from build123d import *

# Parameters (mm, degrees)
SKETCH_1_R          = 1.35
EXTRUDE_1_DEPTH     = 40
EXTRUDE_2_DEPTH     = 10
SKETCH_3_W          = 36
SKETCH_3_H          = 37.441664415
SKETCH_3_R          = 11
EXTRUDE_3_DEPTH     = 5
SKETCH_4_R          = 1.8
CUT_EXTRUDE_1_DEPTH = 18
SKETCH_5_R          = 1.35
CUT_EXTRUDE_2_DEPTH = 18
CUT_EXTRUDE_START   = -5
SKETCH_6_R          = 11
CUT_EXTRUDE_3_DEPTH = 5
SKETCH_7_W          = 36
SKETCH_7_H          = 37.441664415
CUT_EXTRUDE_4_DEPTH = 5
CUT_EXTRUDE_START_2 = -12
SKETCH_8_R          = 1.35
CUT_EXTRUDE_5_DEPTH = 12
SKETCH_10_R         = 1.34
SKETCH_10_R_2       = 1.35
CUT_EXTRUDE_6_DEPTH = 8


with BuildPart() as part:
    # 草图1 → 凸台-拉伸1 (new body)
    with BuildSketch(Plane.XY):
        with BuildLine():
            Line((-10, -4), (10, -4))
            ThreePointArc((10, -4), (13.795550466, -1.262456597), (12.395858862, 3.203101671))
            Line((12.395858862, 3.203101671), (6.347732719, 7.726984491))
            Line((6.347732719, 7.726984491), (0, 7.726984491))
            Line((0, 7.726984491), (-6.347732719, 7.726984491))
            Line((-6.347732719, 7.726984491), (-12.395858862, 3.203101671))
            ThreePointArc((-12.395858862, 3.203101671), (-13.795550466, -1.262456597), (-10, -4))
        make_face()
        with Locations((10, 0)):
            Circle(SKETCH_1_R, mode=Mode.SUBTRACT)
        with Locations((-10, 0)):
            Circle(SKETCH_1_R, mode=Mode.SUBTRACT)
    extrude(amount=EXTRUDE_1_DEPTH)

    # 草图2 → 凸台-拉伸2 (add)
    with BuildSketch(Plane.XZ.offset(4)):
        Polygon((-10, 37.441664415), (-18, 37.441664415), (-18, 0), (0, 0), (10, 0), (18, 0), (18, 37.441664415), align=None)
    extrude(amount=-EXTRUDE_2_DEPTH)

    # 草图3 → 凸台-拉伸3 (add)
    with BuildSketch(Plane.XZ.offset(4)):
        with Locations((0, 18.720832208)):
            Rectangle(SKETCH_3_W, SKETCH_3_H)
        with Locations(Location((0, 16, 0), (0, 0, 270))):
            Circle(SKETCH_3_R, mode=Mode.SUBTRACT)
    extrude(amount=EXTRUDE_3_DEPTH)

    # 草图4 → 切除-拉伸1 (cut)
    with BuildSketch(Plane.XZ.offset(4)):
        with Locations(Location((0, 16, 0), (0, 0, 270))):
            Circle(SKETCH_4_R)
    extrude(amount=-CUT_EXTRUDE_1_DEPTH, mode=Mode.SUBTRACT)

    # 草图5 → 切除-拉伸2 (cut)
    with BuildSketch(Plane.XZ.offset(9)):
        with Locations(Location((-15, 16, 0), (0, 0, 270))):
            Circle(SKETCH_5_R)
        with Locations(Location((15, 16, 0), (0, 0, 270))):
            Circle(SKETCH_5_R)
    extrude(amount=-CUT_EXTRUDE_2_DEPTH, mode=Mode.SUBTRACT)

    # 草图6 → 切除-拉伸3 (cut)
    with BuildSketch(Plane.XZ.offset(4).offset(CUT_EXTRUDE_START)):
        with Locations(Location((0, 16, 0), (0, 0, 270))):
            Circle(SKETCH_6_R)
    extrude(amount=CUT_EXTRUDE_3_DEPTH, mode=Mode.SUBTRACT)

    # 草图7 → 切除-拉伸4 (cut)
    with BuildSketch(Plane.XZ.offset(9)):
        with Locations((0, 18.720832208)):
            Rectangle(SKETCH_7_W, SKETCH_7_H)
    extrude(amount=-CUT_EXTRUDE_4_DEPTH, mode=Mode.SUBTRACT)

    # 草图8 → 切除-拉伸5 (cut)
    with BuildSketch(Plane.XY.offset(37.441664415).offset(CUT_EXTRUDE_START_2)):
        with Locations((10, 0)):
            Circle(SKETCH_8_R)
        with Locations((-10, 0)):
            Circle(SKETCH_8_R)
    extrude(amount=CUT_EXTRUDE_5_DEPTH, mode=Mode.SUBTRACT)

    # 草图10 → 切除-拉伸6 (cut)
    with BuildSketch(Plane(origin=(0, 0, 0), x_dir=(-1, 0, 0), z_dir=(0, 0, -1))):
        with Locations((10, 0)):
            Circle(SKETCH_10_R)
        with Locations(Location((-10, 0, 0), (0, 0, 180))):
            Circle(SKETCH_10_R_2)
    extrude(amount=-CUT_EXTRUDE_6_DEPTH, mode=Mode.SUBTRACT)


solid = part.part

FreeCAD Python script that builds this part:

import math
import FreeCAD as App
import Part
import Sketcher


def add_polygon(sketch, points):
    """Adds a closed chain of lines whose ends are joined by coincident constraints."""
    first, n = sketch.GeometryCount, len(points)
    for a, b in zip(points, points[1:] + points[:1]):
        sketch.addGeometry(Part.LineSegment(App.Vector(*a, 0), App.Vector(*b, 0)), False)
    for i in range(n):
        sketch.addConstraint(Sketcher.Constraint("Coincident", first + i, 2, first + (i + 1) % n, 1))

doc = App.newDocument("Part")
body = doc.addObject("PartDesign::Body", "Body")

sketch1 = body.newObject("Sketcher::SketchObject", "Sketch")
sketch1.AttachmentSupport = (doc.getObject("XY_Plane"), [""])
sketch1.MapMode = "FlatFace"
sketch1.addGeometry([
    Part.LineSegment(App.Vector(-10, -4, 0), App.Vector(10, -4, 0)),
    Part.ArcOfCircle(Part.Circle(App.Vector(10, 0, 0), App.Vector(0, 0, 1), 4), math.radians(-90), math.radians(53)),
    Part.LineSegment(App.Vector(12.4, 3.2, 0), App.Vector(6.3, 7.7, 0)),
    Part.LineSegment(App.Vector(6.3, 7.7, 0), App.Vector(-6.3, 7.7, 0)),
    Part.LineSegment(App.Vector(-6.3, 7.7, 0), App.Vector(-12.4, 3.2, 0)),
    Part.ArcOfCircle(Part.Circle(App.Vector(-10, 0, 0), App.Vector(0, 0, 1), 4), math.radians(127), math.radians(270)),
    Part.Circle(App.Vector(-10, 0, 0), App.Vector(0, 0, 1), 1.4),
    Part.Circle(App.Vector(10, 0, 0), App.Vector(0, 0, 1), 1.4),
], False)
sketch1.addConstraint([
    Sketcher.Constraint("Tangent", 0, 2, 1, 1),
    Sketcher.Constraint("Tangent", 1, 2, 2, 1),
    Sketcher.Constraint("Coincident", 2, 2, 3, 1),
    Sketcher.Constraint("Coincident", 3, 2, 4, 1),
    Sketcher.Constraint("Tangent", 4, 2, 5, 1),
    Sketcher.Constraint("Tangent", 5, 2, 0, 1),
    Sketcher.Constraint("Horizontal", 0),
    Sketcher.Constraint("Horizontal", 3),
    Sketcher.Constraint("Coincident", 6, 3, 5, 3),
    Sketcher.Constraint("Coincident", 7, 3, 1, 3),
    Sketcher.Constraint("Equal", 1, 5),
    Sketcher.Constraint("Equal", 6, 7),
    Sketcher.Constraint("Symmetric", 1, 3, 5, 3, -1, 1),
    Sketcher.Constraint("Horizontal", 1, 2, 4, 2),
    Sketcher.Constraint("Radius", 1, 4.0),
    Sketcher.Constraint("Diameter", 6, 2.7),
    Sketcher.Constraint("DistanceX", 0, 1, 0, 2, 20.0),
    Sketcher.Constraint("DistanceY", -1, 1, 1, 2, 3.203102),
    Sketcher.Constraint("DistanceX", 3, 2, 3, 1, 12.695465),
])
pad1 = body.newObject("PartDesign::Pad", "Pad")
pad1.Profile = sketch1
pad1.Length = 40

sketch2 = body.newObject("Sketcher::SketchObject", "Sketch001")
sketch2.AttachmentSupport = (doc.getObject("XZ_Plane"), [""])
sketch2.MapMode = "FlatFace"
sketch2.AttachmentOffset = App.Placement(App.Vector(0, 0, 4), App.Rotation())
add_polygon(sketch2, [(-18, 37), (-18, 0), (18, 0), (18, 37)])
sketch2.addConstraint([
    Sketcher.Constraint("Vertical", 0),
    Sketcher.Constraint("Horizontal", 1),
    Sketcher.Constraint("Vertical", 2),
    Sketcher.Constraint("Horizontal", 3),
    Sketcher.Constraint("Symmetric", 0, 2, 1, 2, -1, 1),
    Sketcher.Constraint("DistanceX", 1, 1, 1, 2, 36.0),
    Sketcher.Constraint("DistanceY", 0, 2, 0, 1, 37.441664),
])
pad2 = body.newObject("PartDesign::Pad", "Pad001")
pad2.Profile = sketch2
pad2.Length = 10
pad2.Reversed = True

sketch3 = body.newObject("Sketcher::SketchObject", "Sketch002")
sketch3.AttachmentSupport = (doc.getObject("XZ_Plane"), [""])
sketch3.MapMode = "FlatFace"
sketch3.AttachmentOffset = App.Placement(App.Vector(0, 0, 4), App.Rotation())
add_polygon(sketch3, [(-18, 37), (-18, 0), (18, 0), (18, 37)])
sketch3.addGeometry(Part.Circle(App.Vector(0, 16, 0), App.Vector(0, 0, 1), 11), False)
sketch3.addConstraint([
    Sketcher.Constraint("Vertical", 0),
    Sketcher.Constraint("Horizontal", 1),
    Sketcher.Constraint("Vertical", 2),
    Sketcher.Constraint("Horizontal", 3),
    Sketcher.Constraint("Symmetric", 0, 2, 1, 2, -1, 1),
    Sketcher.Constraint("PointOnObject", 4, 3, -2),
    Sketcher.Constraint("Diameter", 4, 22.0),
    Sketcher.Constraint("DistanceX", 1, 1, 1, 2, 36.0),
    Sketcher.Constraint("DistanceY", -1, 1, 4, 3, 16.0),
    Sketcher.Constraint("DistanceY", 0, 2, 0, 1, 37.441664),
])
pad3 = body.newObject("PartDesign::Pad", "Pad002")
pad3.Profile = sketch3
pad3.Length = 5

sketch4 = body.newObject("Sketcher::SketchObject", "Sketch003")
sketch4.AttachmentSupport = (doc.getObject("XZ_Plane"), [""])
sketch4.MapMode = "FlatFace"
sketch4.AttachmentOffset = App.Placement(App.Vector(0, 0, 4), App.Rotation())
sketch4.addGeometry(Part.Circle(App.Vector(0, 16, 0), App.Vector(0, 0, 1), 1.8), False)
sketch4.addConstraint([
    Sketcher.Constraint("PointOnObject", 0, 3, -2),
    Sketcher.Constraint("Diameter", 0, 3.6),
    Sketcher.Constraint("DistanceY", -1, 1, 0, 3, 16.0),
])
pocket1 = body.newObject("PartDesign::Pocket", "Pocket")
pocket1.Profile = sketch4
pocket1.Length = 18

sketch5 = body.newObject("Sketcher::SketchObject", "Sketch004")
sketch5.AttachmentSupport = (doc.getObject("XZ_Plane"), [""])
sketch5.MapMode = "FlatFace"
sketch5.AttachmentOffset = App.Placement(App.Vector(0, 0, 9), App.Rotation())
sketch5.addGeometry([
    Part.Circle(App.Vector(-15, 16, 0), App.Vector(0, 0, 1), 1.4),
    Part.Circle(App.Vector(15, 16, 0), App.Vector(0, 0, 1), 1.4),
], False)
sketch5.addConstraint([
    Sketcher.Constraint("Equal", 0, 1),
    Sketcher.Constraint("Symmetric", 0, 3, 1, 3, -2),
    Sketcher.Constraint("Diameter", 0, 2.7),
    Sketcher.Constraint("DistanceX", 0, 3, -1, 1, 15.0),
    Sketcher.Constraint("DistanceY", -1, 1, 0, 3, 16.0),
])
pocket2 = body.newObject("PartDesign::Pocket", "Pocket001")
pocket2.Profile = sketch5
pocket2.Length = 18

sketch6 = body.newObject("Sketcher::SketchObject", "Sketch005")
sketch6.AttachmentSupport = (doc.getObject("XZ_Plane"), [""])
sketch6.MapMode = "FlatFace"
sketch6.AttachmentOffset = App.Placement(App.Vector(0, 0, -1), App.Rotation())
sketch6.addGeometry(Part.Circle(App.Vector(0, 16, 0), App.Vector(0, 0, 1), 11), False)
sketch6.addConstraint([
    Sketcher.Constraint("PointOnObject", 0, 3, -2),
    Sketcher.Constraint("Diameter", 0, 22.0),
    Sketcher.Constraint("DistanceY", -1, 1, 0, 3, 16.0),
])
pocket3 = body.newObject("PartDesign::Pocket", "Pocket002")
pocket3.Profile = sketch6
pocket3.Length = 5
pocket3.Reversed = True

sketch7 = body.newObject("Sketcher::SketchObject", "Sketch006")
sketch7.AttachmentSupport = (doc.getObject("XZ_Plane"), [""])
sketch7.MapMode = "FlatFace"
sketch7.AttachmentOffset = App.Placement(App.Vector(0, 0, 9), App.Rotation())
add_polygon(sketch7, [(-18, 37), (-18, 0), (18, 0), (18, 37)])
sketch7.addConstraint([
    Sketcher.Constraint("Vertical", 0),
    Sketcher.Constraint("Horizontal", 1),
    Sketcher.Constraint("Vertical", 2),
    Sketcher.Constraint("Horizontal", 3),
    Sketcher.Constraint("Symmetric", 0, 2, 1, 2, -1, 1),
    Sketcher.Constraint("DistanceX", 1, 1, 1, 2, 36.0),
    Sketcher.Constraint("DistanceY", 0, 2, 0, 1, 37.441664),
])
pocket4 = body.newObject("PartDesign::Pocket", "Pocket003")
pocket4.Profile = sketch7
pocket4.Length = 5

sketch8 = body.newObject("Sketcher::SketchObject", "Sketch007")
sketch8.AttachmentSupport = (doc.getObject("XY_Plane"), [""])
sketch8.MapMode = "FlatFace"
sketch8.AttachmentOffset = App.Placement(App.Vector(0, 0, 25.441664), App.Rotation())
sketch8.addGeometry([
    Part.Circle(App.Vector(10, 0, 0), App.Vector(0, 0, 1), 1.4),
    Part.Circle(App.Vector(-10, 0, 0), App.Vector(0, 0, 1), 1.4),
], False)
sketch8.addConstraint([
    Sketcher.Constraint("Equal", 0, 1),
    Sketcher.Constraint("Symmetric", 0, 3, 1, 3, -1, 1),
    Sketcher.Constraint("PointOnObject", 0, 3, -1),
    Sketcher.Constraint("Diameter", 0, 2.7),
    Sketcher.Constraint("DistanceX", -1, 1, 0, 3, 10.0),
])
pocket5 = body.newObject("PartDesign::Pocket", "Pocket004")
pocket5.Profile = sketch8
pocket5.Length = 12
pocket5.Reversed = True

sketch9 = body.newObject("Sketcher::SketchObject", "Sketch008")
sketch9.AttachmentSupport = (doc.getObject("XY_Plane"), [""])
sketch9.MapMode = "FlatFace"
sketch9.addGeometry([
    Part.Circle(App.Vector(-10, 0, 0), App.Vector(0, 0, 1), 1.3),
    Part.Circle(App.Vector(10, 0, 0), App.Vector(0, 0, 1), 1.4),
], False)
sketch9.addConstraint([
    Sketcher.Constraint("Symmetric", 0, 3, 1, 3, -1, 1),
    Sketcher.Constraint("PointOnObject", 0, 3, -1),
    Sketcher.Constraint("Diameter", 1, 2.7),
    Sketcher.Constraint("Diameter", 0, 2.68),
    Sketcher.Constraint("DistanceX", 0, 3, -1, 1, 10.0),
])
pocket6 = body.newObject("PartDesign::Pocket", "Pocket005")
pocket6.Profile = sketch9
pocket6.Length = 8
pocket6.Reversed = True

doc.recompute()
